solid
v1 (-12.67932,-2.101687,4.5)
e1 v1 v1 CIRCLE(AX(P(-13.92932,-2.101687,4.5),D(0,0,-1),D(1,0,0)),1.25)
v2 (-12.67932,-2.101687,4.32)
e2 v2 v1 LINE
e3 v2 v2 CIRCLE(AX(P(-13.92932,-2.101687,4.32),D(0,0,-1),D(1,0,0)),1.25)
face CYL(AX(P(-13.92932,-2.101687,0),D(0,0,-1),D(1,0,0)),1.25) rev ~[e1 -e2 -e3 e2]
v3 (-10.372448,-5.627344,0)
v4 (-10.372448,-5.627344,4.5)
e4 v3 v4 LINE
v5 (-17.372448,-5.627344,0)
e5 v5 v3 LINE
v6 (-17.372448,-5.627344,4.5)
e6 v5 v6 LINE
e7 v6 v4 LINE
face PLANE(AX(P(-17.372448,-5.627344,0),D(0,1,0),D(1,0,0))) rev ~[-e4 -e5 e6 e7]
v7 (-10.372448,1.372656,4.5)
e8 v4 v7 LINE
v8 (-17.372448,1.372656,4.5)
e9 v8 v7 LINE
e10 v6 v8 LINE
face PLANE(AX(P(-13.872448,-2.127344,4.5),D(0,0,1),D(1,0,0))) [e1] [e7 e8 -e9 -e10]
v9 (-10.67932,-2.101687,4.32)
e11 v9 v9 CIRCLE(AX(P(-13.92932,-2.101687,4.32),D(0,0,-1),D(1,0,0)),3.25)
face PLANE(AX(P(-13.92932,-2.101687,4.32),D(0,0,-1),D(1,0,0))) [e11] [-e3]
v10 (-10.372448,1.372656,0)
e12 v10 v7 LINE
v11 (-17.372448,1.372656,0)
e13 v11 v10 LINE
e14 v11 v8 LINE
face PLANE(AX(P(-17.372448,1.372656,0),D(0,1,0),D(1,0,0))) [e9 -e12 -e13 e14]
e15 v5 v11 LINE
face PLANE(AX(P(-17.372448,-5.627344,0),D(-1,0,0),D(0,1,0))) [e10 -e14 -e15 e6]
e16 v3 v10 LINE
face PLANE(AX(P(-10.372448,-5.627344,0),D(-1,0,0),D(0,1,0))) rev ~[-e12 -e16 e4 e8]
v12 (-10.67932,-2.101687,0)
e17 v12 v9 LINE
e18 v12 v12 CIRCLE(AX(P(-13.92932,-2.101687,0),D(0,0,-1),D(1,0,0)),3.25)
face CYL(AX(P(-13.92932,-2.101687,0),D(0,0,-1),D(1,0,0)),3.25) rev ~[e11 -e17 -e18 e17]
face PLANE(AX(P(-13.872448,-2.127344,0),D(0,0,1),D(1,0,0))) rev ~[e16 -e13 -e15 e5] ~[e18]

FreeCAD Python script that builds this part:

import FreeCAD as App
import Part
import Sketcher
from FreeCAD import Vector
Q = App.Units.Quantity

doc = App.newDocument("Part")
body = doc.addObject("PartDesign::Body", "Body")

sketch1 = doc.addObject("Sketcher::SketchObject", "Sketch")
body.addObject(sketch1)
sketch1.AttachmentSupport = (doc.XY_Plane, [""])
sketch1.MapMode = "FlatFace"
sketch1.addGeometry(Part.LineSegment(Vector(-17.372448, 1.372656, 0), Vector(-17.372448, -5.627344, 0)), False)
sketch1.addGeometry(Part.LineSegment(Vector(-17.372448, -5.627344, 0), Vector(-10.372448, -5.627344, 0)), False)
sketch1.addGeometry(Part.LineSegment(Vector(-10.372448, -5.627344, 0), Vector(-10.372448, 1.372656, 0)), False)
sketch1.addGeometry(Part.LineSegment(Vector(-10.372448, 1.372656, 0), Vector(-17.372448, 1.372656, 0)), False)
sketch1.addConstraint(Sketcher.Constraint("Coincident", 0, 2, 1, 1))
sketch1.addConstraint(Sketcher.Constraint("Coincident", 1, 2, 2, 1))
sketch1.addConstraint(Sketcher.Constraint("Coincident", 2, 2, 3, 1))
sketch1.addConstraint(Sketcher.Constraint("Coincident", 3, 2, 0, 1))
sketch1.addConstraint(Sketcher.Constraint("Vertical", 0))
sketch1.addConstraint(Sketcher.Constraint("Horizontal", 1))
sketch1.addConstraint(Sketcher.Constraint("Vertical", 2))
sketch1.addConstraint(Sketcher.Constraint("Horizontal", 3))
sketch1.addConstraint(Sketcher.Constraint("Equal", 3, 0))
sketch1.addConstraint(Sketcher.Constraint("DistanceX", 1, 1, 1, 2, Q("7 mm")))
sketch1.addConstraint(Sketcher.Constraint("DistanceX", 0, 2, -1, 1, Q("17.372448 mm")))
sketch1.addConstraint(Sketcher.Constraint("DistanceY", 0, 2, -1, 1, Q("5.627344 mm")))
pad1 = doc.addObject("PartDesign::Pad", "Pad")
body.addObject(pad1)
pad1.Profile = sketch1
pad1.Length = 4.5

sketch2 = doc.addObject("Sketcher::SketchObject", "Sketch001")
body.addObject(sketch2)
sketch2.AttachmentSupport = (doc.XY_Plane, [""])
sketch2.MapMode = "FlatFace"
sketch2.addGeometry(Part.Circle(Vector(-13.92932, -2.101687, 0), Vector(0, 0, 1), 1.25), False)
sketch2.addConstraint(Sketcher.Constraint("Diameter", 0, Q("2.5 mm")))
sketch2.addConstraint(Sketcher.Constraint("DistanceX", 0, 3, -1, 1, Q("13.92932 mm")))
sketch2.addConstraint(Sketcher.Constraint("DistanceY", 0, 3, -1, 1, Q("2.101687 mm")))
pocket1 = doc.addObject("PartDesign::Pocket", "Pocket")
body.addObject(pocket1)
pocket1.Profile = sketch2
pocket1.Length = 25
pocket1.Reversed = True

sketch3 = doc.addObject("Sketcher::SketchObject", "Sketch002")
body.addObject(sketch3)
sketch3.AttachmentSupport = (doc.XY_Plane, [""])
sketch3.MapMode = "FlatFace"
sketch3.addGeometry(Part.Circle(Vector(-13.92932, -2.101687, 0), Vector(0, 0, 1), 3.25), False)
sketch3.addGeometry(Part.Circle(Vector(-13.92932, -2.101687, 0), Vector(0, 0, 1), 1.25), False)
sketch3.addConstraint(Sketcher.Constraint("Coincident", 1, 3, 0, 3))
sketch3.addConstraint(Sketcher.Constraint("Diameter", 0, Q("6.5 mm")))
sketch3.addConstraint(Sketcher.Constraint("Diameter", 1, Q("2.5 mm")))
sketch3.addConstraint(Sketcher.Constraint("DistanceX", 0, 3, -1, 1, Q("13.92932 mm")))
sketch3.addConstraint(Sketcher.Constraint("DistanceY", 0, 3, -1, 1, Q("2.101687 mm")))
pocket2 = doc.addObject("PartDesign::Pocket", "Pocket001")
body.addObject(pocket2)
pocket2.Profile = sketch3
pocket2.Length = 4.32
pocket2.Reversed = True

doc.recompute()
